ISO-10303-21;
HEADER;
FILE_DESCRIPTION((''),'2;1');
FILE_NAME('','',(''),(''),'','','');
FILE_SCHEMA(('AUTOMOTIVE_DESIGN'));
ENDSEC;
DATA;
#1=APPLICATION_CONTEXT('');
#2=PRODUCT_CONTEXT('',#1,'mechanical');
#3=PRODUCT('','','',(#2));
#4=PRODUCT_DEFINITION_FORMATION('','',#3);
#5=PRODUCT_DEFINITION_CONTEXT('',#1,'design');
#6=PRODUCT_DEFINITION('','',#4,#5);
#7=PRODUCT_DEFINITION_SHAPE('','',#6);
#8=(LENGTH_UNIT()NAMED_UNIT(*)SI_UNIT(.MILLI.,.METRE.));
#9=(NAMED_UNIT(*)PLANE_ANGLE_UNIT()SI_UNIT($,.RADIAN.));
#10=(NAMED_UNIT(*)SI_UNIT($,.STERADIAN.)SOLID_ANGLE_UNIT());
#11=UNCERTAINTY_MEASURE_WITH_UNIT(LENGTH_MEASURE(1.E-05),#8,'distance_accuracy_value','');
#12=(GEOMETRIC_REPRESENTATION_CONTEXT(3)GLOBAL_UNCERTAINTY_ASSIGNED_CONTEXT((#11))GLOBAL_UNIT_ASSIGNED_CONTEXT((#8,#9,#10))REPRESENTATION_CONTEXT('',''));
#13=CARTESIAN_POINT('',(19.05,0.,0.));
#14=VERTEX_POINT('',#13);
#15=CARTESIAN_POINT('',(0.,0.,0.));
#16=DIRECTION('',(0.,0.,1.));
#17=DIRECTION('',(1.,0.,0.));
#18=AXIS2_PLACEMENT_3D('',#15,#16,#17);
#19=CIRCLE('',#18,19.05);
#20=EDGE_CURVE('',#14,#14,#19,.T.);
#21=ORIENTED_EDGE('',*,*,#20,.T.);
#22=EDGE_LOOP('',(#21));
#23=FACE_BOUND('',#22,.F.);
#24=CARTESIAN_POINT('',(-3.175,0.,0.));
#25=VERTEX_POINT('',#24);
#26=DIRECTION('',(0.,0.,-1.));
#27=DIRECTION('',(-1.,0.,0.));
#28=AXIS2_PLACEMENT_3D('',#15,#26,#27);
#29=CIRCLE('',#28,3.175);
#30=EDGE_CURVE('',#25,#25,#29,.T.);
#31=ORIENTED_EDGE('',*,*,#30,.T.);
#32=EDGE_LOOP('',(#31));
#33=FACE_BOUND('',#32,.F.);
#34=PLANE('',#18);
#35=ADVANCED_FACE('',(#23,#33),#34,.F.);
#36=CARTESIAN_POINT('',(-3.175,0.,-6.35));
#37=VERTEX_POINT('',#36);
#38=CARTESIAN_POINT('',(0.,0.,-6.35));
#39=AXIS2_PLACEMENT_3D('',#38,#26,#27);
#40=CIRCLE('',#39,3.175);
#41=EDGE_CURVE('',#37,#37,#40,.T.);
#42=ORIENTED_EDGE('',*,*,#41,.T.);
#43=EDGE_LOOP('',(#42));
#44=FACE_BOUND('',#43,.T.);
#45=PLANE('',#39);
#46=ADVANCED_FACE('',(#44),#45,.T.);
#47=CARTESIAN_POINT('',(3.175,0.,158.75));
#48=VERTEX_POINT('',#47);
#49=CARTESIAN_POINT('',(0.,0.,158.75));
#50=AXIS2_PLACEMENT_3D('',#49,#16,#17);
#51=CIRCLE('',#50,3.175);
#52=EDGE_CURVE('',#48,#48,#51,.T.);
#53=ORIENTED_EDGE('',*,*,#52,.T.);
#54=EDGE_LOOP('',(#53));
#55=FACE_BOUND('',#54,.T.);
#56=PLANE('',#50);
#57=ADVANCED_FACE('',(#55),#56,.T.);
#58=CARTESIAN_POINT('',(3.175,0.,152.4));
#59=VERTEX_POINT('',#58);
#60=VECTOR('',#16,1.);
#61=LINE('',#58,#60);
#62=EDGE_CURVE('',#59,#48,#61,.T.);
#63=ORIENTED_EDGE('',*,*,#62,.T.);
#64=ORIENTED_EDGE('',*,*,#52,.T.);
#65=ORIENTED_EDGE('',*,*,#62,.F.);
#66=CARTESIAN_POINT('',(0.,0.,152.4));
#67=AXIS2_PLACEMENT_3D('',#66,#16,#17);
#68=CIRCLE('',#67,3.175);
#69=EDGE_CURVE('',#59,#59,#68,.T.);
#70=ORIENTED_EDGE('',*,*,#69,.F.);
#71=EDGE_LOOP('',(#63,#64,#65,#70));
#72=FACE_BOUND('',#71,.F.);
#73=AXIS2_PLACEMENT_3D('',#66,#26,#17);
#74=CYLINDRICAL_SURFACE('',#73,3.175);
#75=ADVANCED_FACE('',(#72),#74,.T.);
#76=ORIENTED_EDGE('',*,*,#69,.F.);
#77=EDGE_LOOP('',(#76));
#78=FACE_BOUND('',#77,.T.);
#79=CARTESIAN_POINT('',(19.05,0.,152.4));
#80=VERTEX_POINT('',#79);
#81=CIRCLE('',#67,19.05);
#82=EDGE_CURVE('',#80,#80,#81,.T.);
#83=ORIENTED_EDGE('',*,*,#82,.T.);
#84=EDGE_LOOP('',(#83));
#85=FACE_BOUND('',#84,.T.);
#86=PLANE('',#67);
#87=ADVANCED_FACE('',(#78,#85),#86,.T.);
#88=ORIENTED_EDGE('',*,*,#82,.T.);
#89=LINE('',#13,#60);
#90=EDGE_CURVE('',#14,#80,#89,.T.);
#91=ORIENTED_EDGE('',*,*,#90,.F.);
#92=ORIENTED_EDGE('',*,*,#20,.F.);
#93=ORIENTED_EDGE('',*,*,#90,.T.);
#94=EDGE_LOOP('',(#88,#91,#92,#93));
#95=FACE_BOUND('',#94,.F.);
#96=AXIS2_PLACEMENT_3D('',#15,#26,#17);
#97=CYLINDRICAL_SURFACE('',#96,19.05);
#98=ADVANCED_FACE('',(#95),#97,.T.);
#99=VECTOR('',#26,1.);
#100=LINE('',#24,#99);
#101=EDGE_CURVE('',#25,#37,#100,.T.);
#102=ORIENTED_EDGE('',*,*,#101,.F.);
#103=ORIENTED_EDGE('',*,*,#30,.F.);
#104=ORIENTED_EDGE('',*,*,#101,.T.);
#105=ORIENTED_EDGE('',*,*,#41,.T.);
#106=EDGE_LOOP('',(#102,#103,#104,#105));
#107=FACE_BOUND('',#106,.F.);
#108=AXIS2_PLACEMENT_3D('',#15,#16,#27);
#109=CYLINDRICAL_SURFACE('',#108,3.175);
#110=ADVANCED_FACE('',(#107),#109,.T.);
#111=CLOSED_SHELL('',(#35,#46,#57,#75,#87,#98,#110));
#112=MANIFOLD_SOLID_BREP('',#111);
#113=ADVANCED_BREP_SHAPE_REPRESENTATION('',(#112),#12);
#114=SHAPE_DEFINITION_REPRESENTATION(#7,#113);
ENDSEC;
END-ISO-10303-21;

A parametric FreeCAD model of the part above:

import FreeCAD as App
import Part
import Sketcher
from FreeCAD import Vector
Q = App.Units.Quantity

doc = App.newDocument("Part")
body = doc.addObject("PartDesign::Body", "Body")

# Sketch on XY plane
sketch1 = doc.addObject("Sketcher::SketchObject", "Sketch")
body.addObject(sketch1)
sketch1.AttachmentSupport = (doc.XY_Plane, [""])
sketch1.MapMode = "FlatFace"
sketch1.addGeometry(Part.Circle(Vector(0, 0, 0), Vector(0, 0, 1), 19.05), False)
sketch1.addConstraint(Sketcher.Constraint("Coincident", 0, 3, -1, 1))
sketch1.addConstraint(Sketcher.Constraint("Diameter", 0, Q("1.5 in")))
pad1 = doc.addObject("PartDesign::Pad", "Pad")
body.addObject(pad1)
pad1.Profile = sketch1
pad1.Length = Q("6 in")

# Sketch on XY plane
sketch2 = doc.addObject("Sketcher::SketchObject", "Sketch001")
body.addObject(sketch2)
sketch2.AttachmentSupport = (doc.XY_Plane, [""])
sketch2.MapMode = "FlatFace"
sketch2.AttachmentOffset = App.Placement(Vector(0, 0, 6 * 25.4), App.Rotation())
sketch2.addGeometry(Part.Circle(Vector(0, 0, 0), Vector(0, 0, 1), 3.175), False)
sketch2.addConstraint(Sketcher.Constraint("Coincident", 0, 3, -1, 1))
sketch2.addConstraint(Sketcher.Constraint("Diameter", 0, Q("0.25 in")))
pad2 = doc.addObject("PartDesign::Pad", "Pad001")
body.addObject(pad2)
pad2.Profile = sketch2
pad2.Length = Q("0.25 in")

# Sketch on XY plane
sketch3 = doc.addObject("Sketcher::SketchObject", "Sketch002")
body.addObject(sketch3)
sketch3.AttachmentSupport = (doc.XY_Plane, [""])
sketch3.MapMode = "FlatFace"
sketch3.addGeometry(Part.Circle(Vector(0, 0, 0), Vector(0, 0, 1), 3.175), False)
sketch3.addConstraint(Sketcher.Constraint("Coincident", 0, 3, -1, 1))
sketch3.addConstraint(Sketcher.Constraint("Diameter", 0, Q("0.25 in")))
pad3 = doc.addObject("PartDesign::Pad", "Pad002")
body.addObject(pad3)
pad3.Profile = sketch3
pad3.Length = Q("0.25 in")
pad3.Reversed = True

doc.recompute()
